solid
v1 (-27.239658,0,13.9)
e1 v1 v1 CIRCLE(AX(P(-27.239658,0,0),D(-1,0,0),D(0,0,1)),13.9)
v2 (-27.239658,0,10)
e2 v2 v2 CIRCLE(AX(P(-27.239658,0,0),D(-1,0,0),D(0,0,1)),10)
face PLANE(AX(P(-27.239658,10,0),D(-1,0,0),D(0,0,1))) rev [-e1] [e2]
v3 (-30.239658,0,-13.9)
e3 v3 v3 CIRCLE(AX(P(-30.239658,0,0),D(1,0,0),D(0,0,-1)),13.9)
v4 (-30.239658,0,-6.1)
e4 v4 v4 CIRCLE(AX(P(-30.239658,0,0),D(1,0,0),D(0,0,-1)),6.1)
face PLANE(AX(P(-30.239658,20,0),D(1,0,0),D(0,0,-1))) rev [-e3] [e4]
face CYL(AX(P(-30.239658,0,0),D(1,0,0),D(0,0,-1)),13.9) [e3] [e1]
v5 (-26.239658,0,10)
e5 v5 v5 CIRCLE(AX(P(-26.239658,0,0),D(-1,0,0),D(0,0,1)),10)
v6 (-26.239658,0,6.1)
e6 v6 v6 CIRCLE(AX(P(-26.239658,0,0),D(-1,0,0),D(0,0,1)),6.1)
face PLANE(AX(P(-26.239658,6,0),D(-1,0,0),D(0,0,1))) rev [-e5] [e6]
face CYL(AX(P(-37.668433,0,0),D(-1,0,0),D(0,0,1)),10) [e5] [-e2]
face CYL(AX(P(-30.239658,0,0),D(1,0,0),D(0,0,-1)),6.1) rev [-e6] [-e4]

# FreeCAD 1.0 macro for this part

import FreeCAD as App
import Part
import Sketcher
from FreeCAD import Vector
Q = App.Units.Quantity

doc = App.newDocument("Part")
body = doc.addObject("PartDesign::Body", "Body")

# Sketch on XY plane
sketch1 = body.newObject("Sketcher::SketchObject", "Sketch")
sketch1.AttachmentSupport = (doc.getObject("XY_Plane"), [""])
sketch1.MapMode = "FlatFace"
sketch1.addGeometry([
    Part.LineSegment(Vector(-30.239658, 20, 0), Vector(-30.239658, 6, 0)),  # 0
    Part.LineSegment(Vector(-30.239658, 6, 0), Vector(-26.239658, 6, 0)),  # 1
    Part.LineSegment(Vector(-26.239658, 6, 0), Vector(-26.239658, 10, 0)),  # 2
    Part.LineSegment(Vector(-26.239658, 10, 0), Vector(-27.239658, 10, 0)),  # 3
    Part.LineSegment(Vector(-27.239658, 10, 0), Vector(-27.239658, 14, 0)),  # 4
    Part.LineSegment(Vector(-27.239658, 14, 0), Vector(-14.239658, 14, 0)),  # 5
    Part.LineSegment(Vector(-14.239658, 14, 0), Vector(-14.239658, 20, 0)),  # 6
    Part.LineSegment(Vector(-14.239658, 20, 0), Vector(-30.239658, 20, 0)),  # 7
], False)
sketch1.addConstraint([
    Sketcher.Constraint("Coincident", 0, 2, 1, 1),
    Sketcher.Constraint("Coincident", 1, 2, 2, 1),
    Sketcher.Constraint("Coincident", 2, 2, 3, 1),
    Sketcher.Constraint("Coincident", 3, 2, 4, 1),
    Sketcher.Constraint("Coincident", 4, 2, 5, 1),
    Sketcher.Constraint("Coincident", 5, 2, 6, 1),
    Sketcher.Constraint("Coincident", 6, 2, 7, 1),
    Sketcher.Constraint("Coincident", 7, 2, 0, 1),
    Sketcher.Constraint("Vertical", 0),
    Sketcher.Constraint("Horizontal", 1),
    Sketcher.Constraint("Vertical", 2),
    Sketcher.Constraint("Horizontal", 3),
    Sketcher.Constraint("Vertical", 4),
    Sketcher.Constraint("Horizontal", 5),
    Sketcher.Constraint("Vertical", 6),
    Sketcher.Constraint("Horizontal", 7),
    Sketcher.Constraint("Equal", 1, 2),
    Sketcher.Constraint("Equal", 2, 4),
    Sketcher.Constraint("DistanceX", 1, 1, 1, 2, Q("4 mm")),
    Sketcher.Constraint("DistanceX", 3, 2, 3, 1, Q("1 mm")),
    Sketcher.Constraint("DistanceX", 5, 1, 5, 2, Q("13 mm")),
    Sketcher.Constraint("DistanceY", 0, 2, 0, 1, Q("14 mm")),
    Sketcher.Constraint("DistanceY", -1, 1, 0, 2, Q("6 mm")),
    Sketcher.Constraint("DistanceX", 0, 2, -1, 1, Q("30.239658 mm")),
])
revolution = body.newObject("PartDesign::Revolution", "Revolution")
revolution.Profile = sketch1
revolution.ReferenceAxis = (sketch1, ["H_Axis"])
revolution.Angle = 360

# Sketch on YZ plane
sketch2 = body.newObject("Sketcher::SketchObject", "Sketch001")
sketch2.AttachmentSupport = (doc.getObject("YZ_Plane"), [""])
sketch2.MapMode = "FlatFace"
sketch2.AttachmentOffset = App.Placement(Vector(0, 0, -14.239658), App.Rotation())
sketch2.addGeometry(Part.Circle(Vector(17, 0, 0), Vector(0, 0, 1), 1.7), False)
sketch2.addConstraint([
    Sketcher.Constraint("PointOnObject", 0, 3, -1),
    Sketcher.Constraint("Diameter", 0, Q("3.4 mm")),
    Sketcher.Constraint("DistanceX", -1, 1, 0, 3, Q("17 mm")),
])
doc.recompute()
hole = body.newObject("PartDesign::Hole", "Hole")
hole.Profile = sketch2
hole.ThreadType = "None"
hole.Diameter = 3.4
hole.DepthType = "ThroughAll"
hole.HoleCutType = "Countersink"
hole.HoleCutDiameter = 5.7
hole.HoleCutCountersinkAngle = 90
doc.recompute()

polarpattern = body.newObject("PartDesign::PolarPattern", "PolarPattern")
polarpattern.Originals = [hole]
polarpattern.Axis = (doc.getObject("X_Axis"), [""])
polarpattern.Angle = 360
polarpattern.Occurrences = 4
body.Tip = polarpattern

# Sketch on YZ plane
sketch3 = body.newObject("Sketcher::SketchObject", "Sketch002")
sketch3.AttachmentSupport = (doc.getObject("YZ_Plane"), [""])
sketch3.MapMode = "FlatFace"
sketch3.AttachmentOffset = App.Placement(Vector(0, 0, -27.239658), App.Rotation())
sketch3.addGeometry([
    Part.Circle(Vector(0, 0, 0), Vector(0, 0, 1), 24.563351),
    Part.Circle(Vector(0, 0, 0), Vector(0, 0, 1), 12.292484),
], False)
sketch3.addConstraint([
    Sketcher.Constraint("Coincident", 0, 3, -1, 1),
    Sketcher.Constraint("Coincident", 1, 3, -1, 1),
    Sketcher.Constraint("Diameter", 1, Q("24.584969 mm")),
    Sketcher.Constraint("Diameter", 0, Q("49.126702 mm")),
])
pocket1 = body.newObject("PartDesign::Pocket", "Pocket")
pocket1.Profile = sketch3
pocket1.Type = "ThroughAll"
pocket1.Reversed = True

# Sketch on YZ plane
sketch4 = body.newObject("Sketcher::SketchObject", "Sketch003")
sketch4.AttachmentSupport = (doc.getObject("YZ_Plane"), [""])
sketch4.MapMode = "FlatFace"
sketch4.AttachmentOffset = App.Placement(Vector(0, 0, -26.239658), App.Rotation())
sketch4.addGeometry([
    Part.Circle(Vector(0, 0, 0), Vector(0, 0, 1), 25.145284),
    Part.Circle(Vector(0, 0, 0), Vector(0, 0, 1), 13.9),
], False)
sketch4.addConstraint([
    Sketcher.Constraint("Coincident", 0, 3, -1, 1),
    Sketcher.Constraint("Coincident", 1, 3, -1, 1),
    Sketcher.Constraint("Diameter", 1, Q("27.8 mm")),
    Sketcher.Constraint("Diameter", 0, Q("50.290569 mm")),
])
pocket2 = body.newObject("PartDesign::Pocket", "Pocket001")
pocket2.Profile = sketch4
pocket2.Type = "ThroughAll"
pocket2.Midplane = True

# Sketch on YZ plane
sketch5 = body.newObject("Sketcher::SketchObject", "Sketch004")
sketch5.AttachmentSupport = (doc.getObject("YZ_Plane"), [""])
sketch5.MapMode = "FlatFace"
sketch5.AttachmentOffset = App.Placement(Vector(0, 0, -26.239658), App.Rotation())
sketch5.addGeometry(Part.Circle(Vector(0, 0, 0), Vector(0, 0, 1), 6.1), False)
sketch5.addConstraint([
    Sketcher.Constraint("Coincident", 0, 3, -1, 1),
    Sketcher.Constraint("Diameter", 0, Q("12.2 mm")),
])
pocket3 = body.newObject("PartDesign::Pocket", "Pocket002")
pocket3.Profile = sketch5
pocket3.Type = "ThroughAll"
pocket3.Midplane = True

doc.recompute()
